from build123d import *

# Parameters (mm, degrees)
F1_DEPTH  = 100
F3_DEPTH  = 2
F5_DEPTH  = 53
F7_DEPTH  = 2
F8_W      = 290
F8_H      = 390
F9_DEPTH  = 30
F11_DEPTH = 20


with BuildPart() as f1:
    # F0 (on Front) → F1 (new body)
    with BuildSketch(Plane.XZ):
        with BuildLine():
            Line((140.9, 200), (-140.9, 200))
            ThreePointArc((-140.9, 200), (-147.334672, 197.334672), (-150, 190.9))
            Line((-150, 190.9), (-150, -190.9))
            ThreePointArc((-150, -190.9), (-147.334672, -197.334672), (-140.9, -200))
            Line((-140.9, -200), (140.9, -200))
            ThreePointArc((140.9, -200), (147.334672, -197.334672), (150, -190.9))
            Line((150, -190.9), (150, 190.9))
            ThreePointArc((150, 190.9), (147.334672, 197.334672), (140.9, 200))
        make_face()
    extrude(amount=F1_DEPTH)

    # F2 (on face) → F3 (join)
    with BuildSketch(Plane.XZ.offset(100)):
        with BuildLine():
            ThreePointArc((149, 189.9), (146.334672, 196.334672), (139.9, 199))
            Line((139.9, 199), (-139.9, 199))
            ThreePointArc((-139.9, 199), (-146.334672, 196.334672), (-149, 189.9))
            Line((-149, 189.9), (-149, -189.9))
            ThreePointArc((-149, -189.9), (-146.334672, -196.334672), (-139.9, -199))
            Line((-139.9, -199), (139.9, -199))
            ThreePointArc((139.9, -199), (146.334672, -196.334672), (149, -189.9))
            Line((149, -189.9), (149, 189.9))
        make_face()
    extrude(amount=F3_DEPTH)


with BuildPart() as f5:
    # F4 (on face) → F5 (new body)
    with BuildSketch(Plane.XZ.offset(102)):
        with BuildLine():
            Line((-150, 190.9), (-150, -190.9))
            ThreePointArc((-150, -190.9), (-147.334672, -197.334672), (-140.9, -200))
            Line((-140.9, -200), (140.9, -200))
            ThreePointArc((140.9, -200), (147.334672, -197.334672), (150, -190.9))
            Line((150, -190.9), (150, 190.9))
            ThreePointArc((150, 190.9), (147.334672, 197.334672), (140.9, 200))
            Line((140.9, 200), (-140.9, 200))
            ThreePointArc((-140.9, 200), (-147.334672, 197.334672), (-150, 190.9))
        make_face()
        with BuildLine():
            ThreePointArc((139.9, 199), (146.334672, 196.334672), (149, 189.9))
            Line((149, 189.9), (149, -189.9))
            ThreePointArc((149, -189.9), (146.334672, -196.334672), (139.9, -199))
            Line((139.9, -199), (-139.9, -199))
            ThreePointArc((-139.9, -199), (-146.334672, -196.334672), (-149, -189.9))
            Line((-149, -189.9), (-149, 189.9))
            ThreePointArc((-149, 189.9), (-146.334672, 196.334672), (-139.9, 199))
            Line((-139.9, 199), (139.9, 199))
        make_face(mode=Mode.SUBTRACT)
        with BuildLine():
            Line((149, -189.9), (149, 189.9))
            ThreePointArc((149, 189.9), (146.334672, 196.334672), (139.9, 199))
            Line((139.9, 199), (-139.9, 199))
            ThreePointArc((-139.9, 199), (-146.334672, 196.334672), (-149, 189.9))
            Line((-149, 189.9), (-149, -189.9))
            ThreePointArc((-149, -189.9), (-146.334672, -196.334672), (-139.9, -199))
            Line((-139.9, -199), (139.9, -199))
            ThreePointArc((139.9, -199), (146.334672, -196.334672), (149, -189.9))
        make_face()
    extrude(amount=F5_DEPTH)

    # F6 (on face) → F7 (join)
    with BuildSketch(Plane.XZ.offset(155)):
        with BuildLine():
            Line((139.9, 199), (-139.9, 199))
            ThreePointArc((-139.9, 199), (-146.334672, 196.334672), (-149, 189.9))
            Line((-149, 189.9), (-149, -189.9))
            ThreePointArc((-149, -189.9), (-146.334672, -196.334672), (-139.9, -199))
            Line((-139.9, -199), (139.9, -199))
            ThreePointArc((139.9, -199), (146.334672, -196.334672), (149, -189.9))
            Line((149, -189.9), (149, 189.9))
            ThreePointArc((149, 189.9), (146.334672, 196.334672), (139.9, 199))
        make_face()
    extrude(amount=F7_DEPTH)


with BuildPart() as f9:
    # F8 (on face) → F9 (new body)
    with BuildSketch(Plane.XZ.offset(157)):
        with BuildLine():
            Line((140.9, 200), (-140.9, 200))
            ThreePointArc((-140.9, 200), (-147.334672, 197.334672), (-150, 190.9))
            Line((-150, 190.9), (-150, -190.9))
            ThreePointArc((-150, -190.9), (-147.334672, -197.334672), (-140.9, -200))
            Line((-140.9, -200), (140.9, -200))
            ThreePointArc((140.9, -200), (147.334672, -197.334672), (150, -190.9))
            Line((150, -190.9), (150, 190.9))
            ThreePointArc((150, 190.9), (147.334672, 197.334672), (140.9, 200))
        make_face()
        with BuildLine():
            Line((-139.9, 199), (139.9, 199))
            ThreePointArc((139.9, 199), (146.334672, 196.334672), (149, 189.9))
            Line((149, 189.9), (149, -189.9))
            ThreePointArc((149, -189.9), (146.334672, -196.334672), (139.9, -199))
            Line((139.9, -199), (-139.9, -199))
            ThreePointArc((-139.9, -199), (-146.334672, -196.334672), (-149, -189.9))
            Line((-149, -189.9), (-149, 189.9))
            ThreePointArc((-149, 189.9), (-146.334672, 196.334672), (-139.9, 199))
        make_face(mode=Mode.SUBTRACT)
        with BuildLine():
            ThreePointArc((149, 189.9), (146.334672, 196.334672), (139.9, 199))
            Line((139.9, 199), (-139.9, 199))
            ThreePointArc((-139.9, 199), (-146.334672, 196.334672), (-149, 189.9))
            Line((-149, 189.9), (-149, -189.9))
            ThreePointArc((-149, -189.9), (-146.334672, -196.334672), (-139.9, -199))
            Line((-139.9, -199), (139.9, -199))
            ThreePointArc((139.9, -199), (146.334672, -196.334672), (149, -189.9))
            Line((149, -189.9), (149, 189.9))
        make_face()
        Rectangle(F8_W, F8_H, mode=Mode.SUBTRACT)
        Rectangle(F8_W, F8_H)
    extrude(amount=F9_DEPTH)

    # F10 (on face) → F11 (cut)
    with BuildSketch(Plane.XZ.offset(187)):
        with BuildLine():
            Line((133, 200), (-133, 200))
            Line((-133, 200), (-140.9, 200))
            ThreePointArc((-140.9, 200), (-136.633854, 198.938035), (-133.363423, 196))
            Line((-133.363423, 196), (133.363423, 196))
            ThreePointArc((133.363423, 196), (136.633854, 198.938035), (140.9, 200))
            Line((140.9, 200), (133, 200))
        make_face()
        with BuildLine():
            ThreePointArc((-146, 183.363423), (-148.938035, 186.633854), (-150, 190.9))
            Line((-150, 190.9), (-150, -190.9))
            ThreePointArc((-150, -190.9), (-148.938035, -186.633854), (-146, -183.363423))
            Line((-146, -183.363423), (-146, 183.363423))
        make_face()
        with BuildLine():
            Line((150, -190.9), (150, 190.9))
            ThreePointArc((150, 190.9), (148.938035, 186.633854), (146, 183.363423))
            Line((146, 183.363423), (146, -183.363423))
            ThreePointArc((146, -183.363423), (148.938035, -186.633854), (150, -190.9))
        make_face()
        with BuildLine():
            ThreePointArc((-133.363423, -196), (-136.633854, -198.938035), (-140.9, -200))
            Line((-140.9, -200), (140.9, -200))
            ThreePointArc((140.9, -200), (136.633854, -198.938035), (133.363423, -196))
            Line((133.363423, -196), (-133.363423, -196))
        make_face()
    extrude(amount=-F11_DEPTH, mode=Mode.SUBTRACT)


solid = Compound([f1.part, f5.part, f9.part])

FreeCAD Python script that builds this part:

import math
import FreeCAD as App
import Part
import Sketcher

V = App.Vector

doc = App.newDocument("Part")
params = doc.addObject("Spreadsheet::Sheet", "Params")
for row, (alias, value) in enumerate([
    ("sketch1_radius", "9.099999 mm"),
    ("sketch1_width", "281.8 mm"),
    ("sketch1_height", "381.8 mm"),
    ("pad1_length", "100 mm"),
    ("sketch2_radius", "9.099999 mm"),
    ("sketch2_width", "279.8 mm"),
    ("sketch2_height", "379.8 mm"),
    ("pad2_length", "2 mm"),
    ("sketch3_radius", "9.099999 mm"),
    ("sketch3_width", "281.8 mm"),
    ("sketch3_height", "381.8 mm"),
    ("pad3_length", "53 mm"),
    ("sketch4_radius", "9.099999 mm"),
    ("sketch4_width", "279.8 mm"),
    ("sketch4_height", "379.8 mm"),
    ("pad4_length", "2 mm"),
    ("sketch5_radius", "9.099999 mm"),
    ("sketch5_width", "281.8 mm"),
    ("sketch5_height", "381.8 mm"),
    ("pad5_length", "30 mm"),
    ("sketch6_width", "281.8 mm"),
    ("sketch6_height", "381.8 mm"),
    ("pocket1_length", "20 mm"),
], start=1):
    params.set(f"A{row}", alias)
    params.set(f"B{row}", "=" + value)
    params.setAlias(f"B{row}", alias)

body = doc.addObject("PartDesign::Body", "Body")

# Sketch on XZ plane
sketch1 = body.newObject("Sketcher::SketchObject", "Sketch")
sketch1.AttachmentSupport = (doc.getObject("XZ_Plane"), [""])
sketch1.MapMode = "FlatFace"
sketch1.addGeometry([
    Part.LineSegment(V(140.9, 200, 0), V(-140.9, 200, 0)),  # 0
    Part.ArcOfCircle(Part.Circle(V(-140.900001, 190.900001, 0), V(0, 0, 1), 9.099999), math.radians(89.999994), math.radians(180.000006)),  # 1
    Part.LineSegment(V(-150, 190.9, 0), V(-150, -190.9, 0)),  # 2
    Part.ArcOfCircle(Part.Circle(V(-140.900001, -190.900001, 0), V(0, 0, 1), 9.099999), math.radians(179.999994), math.radians(270.000006)),  # 3
    Part.LineSegment(V(-140.9, -200, 0), V(140.9, -200, 0)),  # 4
    Part.ArcOfCircle(Part.Circle(V(140.900001, -190.900001, 0), V(0, 0, 1), 9.099999), math.radians(-90.000006), math.radians(0.000006)),  # 5
    Part.LineSegment(V(150, -190.9, 0), V(150, 190.9, 0)),  # 6
    Part.ArcOfCircle(Part.Circle(V(140.900001, 190.900001, 0), V(0, 0, 1), 9.099999), math.radians(-0.000006), math.radians(90.000006)),  # 7
], False)
sketch1.addConstraint([
    Sketcher.Constraint("Tangent", 0, 2, 1, 1),
    Sketcher.Constraint("Tangent", 1, 2, 2, 1),
    Sketcher.Constraint("Tangent", 2, 2, 3, 1),
    Sketcher.Constraint("Tangent", 3, 2, 4, 1),
    Sketcher.Constraint("Tangent", 4, 2, 5, 1),
    Sketcher.Constraint("Tangent", 5, 2, 6, 1),
    Sketcher.Constraint("Tangent", 6, 2, 7, 1),
    Sketcher.Constraint("Tangent", 7, 2, 0, 1),
    Sketcher.Constraint("Horizontal", 0),
    Sketcher.Constraint("Vertical", 2),
    Sketcher.Constraint("Horizontal", 4),
    Sketcher.Constraint("Vertical", 6),
    Sketcher.Constraint("Equal", 1, 3),
    Sketcher.Constraint("Equal", 3, 5),
    Sketcher.Constraint("Equal", 5, 7),
    Sketcher.Constraint("Symmetric", 1, 3, 5, 3, -1, 1),
    Sketcher.Constraint("Radius", 1, 9.099999),
    Sketcher.Constraint("DistanceX", 0, 2, 0, 1, 281.8),
    Sketcher.Constraint("DistanceY", 2, 2, 2, 1, 381.8),
])
sketch1.setExpression("Constraints[16]", "Params.sketch1_radius")
sketch1.setExpression("Constraints[17]", "Params.sketch1_width")
sketch1.setExpression("Constraints[18]", "Params.sketch1_height")
pad1 = body.newObject("PartDesign::Pad", "Pad")
pad1.Profile = sketch1
pad1.setExpression("Length", "Params.pad1_length")

# Sketch on XZ plane
sketch2 = body.newObject("Sketcher::SketchObject", "Sketch001")
sketch2.AttachmentSupport = (doc.getObject("XZ_Plane"), [""])
sketch2.MapMode = "FlatFace"
sketch2.AttachmentOffset = App.Placement(V(0, 0, 100), App.Rotation())
sketch2.addGeometry([
    Part.ArcOfCircle(Part.Circle(V(139.900001, 189.900001, 0), V(0, 0, 1), 9.099999), math.radians(-0.000006), math.radians(90.000006)),  # 0
    Part.LineSegment(V(139.9, 199, 0), V(-139.9, 199, 0)),  # 1
    Part.ArcOfCircle(Part.Circle(V(-139.900001, 189.900001, 0), V(0, 0, 1), 9.099999), math.radians(89.999994), math.radians(180.000006)),  # 2
    Part.LineSegment(V(-149, 189.9, 0), V(-149, -189.9, 0)),  # 3
    Part.ArcOfCircle(Part.Circle(V(-139.900001, -189.900001, 0), V(0, 0, 1), 9.099999), math.radians(179.999994), math.radians(270.000006)),  # 4
    Part.LineSegment(V(-139.9, -199, 0), V(139.9, -199, 0)),  # 5
    Part.ArcOfCircle(Part.Circle(V(139.900001, -189.900001, 0), V(0, 0, 1), 9.099999), math.radians(-90.000006), math.radians(0.000006)),  # 6
    Part.LineSegment(V(149, -189.9, 0), V(149, 189.9, 0)),  # 7
], False)
sketch2.addConstraint([
    Sketcher.Constraint("Tangent", 0, 2, 1, 1),
    Sketcher.Constraint("Tangent", 1, 2, 2, 1),
    Sketcher.Constraint("Tangent", 2, 2, 3, 1),
    Sketcher.Constraint("Tangent", 3, 2, 4, 1),
    Sketcher.Constraint("Tangent", 4, 2, 5, 1),
    Sketcher.Constraint("Tangent", 5, 2, 6, 1),
    Sketcher.Constraint("Tangent", 6, 2, 7, 1),
    Sketcher.Constraint("Tangent", 7, 2, 0, 1),
    Sketcher.Constraint("Horizontal", 1),
    Sketcher.Constraint("Vertical", 3),
    Sketcher.Constraint("Horizontal", 5),
    Sketcher.Constraint("Vertical", 7),
    Sketcher.Constraint("Equal", 0, 2),
    Sketcher.Constraint("Equal", 2, 4),
    Sketcher.Constraint("Equal", 4, 6),
    Sketcher.Constraint("Symmetric", 0, 3, 4, 3, -1, 1),
    Sketcher.Constraint("Radius", 0, 9.099999),
    Sketcher.Constraint("DistanceX", 1, 2, 1, 1, 279.8),
    Sketcher.Constraint("DistanceY", 3, 2, 3, 1, 379.8),
])
sketch2.setExpression("Constraints[16]", "Params.sketch2_radius")
sketch2.setExpression("Constraints[17]", "Params.sketch2_width")
sketch2.setExpression("Constraints[18]", "Params.sketch2_height")
pad2 = body.newObject("PartDesign::Pad", "Pad001")
pad2.Profile = sketch2
pad2.setExpression("Length", "Params.pad2_length")
body2 = doc.addObject("PartDesign::Body", "Body001")

# Sketch on XZ plane
sketch3 = body2.newObject("Sketcher::SketchObject", "Sketch002")
sketch3.AttachmentSupport = (doc.getObject("XZ_Plane001"), [""])
sketch3.MapMode = "FlatFace"
sketch3.AttachmentOffset = App.Placement(V(0, 0, 102), App.Rotation())
sketch3.addGeometry([
    Part.LineSegment(V(-150, 190.9, 0), V(-150, -190.9, 0)),  # 0
    Part.ArcOfCircle(Part.Circle(V(-140.900001, -190.900001, 0), V(0, 0, 1), 9.099999), math.radians(179.999994), math.radians(270.000006)),  # 1
    Part.LineSegment(V(-140.9, -200, 0), V(140.9, -200, 0)),  # 2
    Part.ArcOfCircle(Part.Circle(V(140.900001, -190.900001, 0), V(0, 0, 1), 9.099999), math.radians(-90.000006), math.radians(0.000006)),  # 3
    Part.LineSegment(V(150, -190.9, 0), V(150, 190.9, 0)),  # 4
    Part.ArcOfCircle(Part.Circle(V(140.900001, 190.900001, 0), V(0, 0, 1), 9.099999), math.radians(-0.000006), math.radians(90.000006)),  # 5
    Part.LineSegment(V(140.9, 200, 0), V(-140.9, 200, 0)),  # 6
    Part.ArcOfCircle(Part.Circle(V(-140.900001, 190.900001, 0), V(0, 0, 1), 9.099999), math.radians(89.999994), math.radians(180.000006)),  # 7
], False)
sketch3.addConstraint([
    Sketcher.Constraint("Tangent", 0, 2, 1, 1),
    Sketcher.Constraint("Tangent", 1, 2, 2, 1),
    Sketcher.Constraint("Tangent", 2, 2, 3, 1),
    Sketcher.Constraint("Tangent", 3, 2, 4, 1),
    Sketcher.Constraint("Tangent", 4, 2, 5, 1),
    Sketcher.Constraint("Tangent", 5, 2, 6, 1),
    Sketcher.Constraint("Tangent", 6, 2, 7, 1),
    Sketcher.Constraint("Tangent", 7, 2, 0, 1),
    Sketcher.Constraint("Vertical", 0),
    Sketcher.Constraint("Horizontal", 2),
    Sketcher.Constraint("Vertical", 4),
    Sketcher.Constraint("Horizontal", 6),
    Sketcher.Constraint("Equal", 1, 3),
    Sketcher.Constraint("Equal", 3, 5),
    Sketcher.Constraint("Equal", 5, 7),
    Sketcher.Constraint("Symmetric", 1, 3, 5, 3, -1, 1),
    Sketcher.Constraint("Radius", 1, 9.099999),
    Sketcher.Constraint("DistanceX", 2, 1, 2, 2, 281.8),
    Sketcher.Constraint("DistanceY", 0, 2, 0, 1, 381.8),
])
sketch3.setExpression("Constraints[16]", "Params.sketch3_radius")
sketch3.setExpression("Constraints[17]", "Params.sketch3_width")
sketch3.setExpression("Constraints[18]", "Params.sketch3_height")
pad3 = body2.newObject("PartDesign::Pad", "Pad002")
pad3.Profile = sketch3
pad3.setExpression("Length", "Params.pad3_length")

# Sketch on XZ plane
sketch4 = body2.newObject("Sketcher::SketchObject", "Sketch003")
sketch4.AttachmentSupport = (doc.getObject("XZ_Plane001"), [""])
sketch4.MapMode = "FlatFace"
sketch4.AttachmentOffset = App.Placement(V(0, 0, 155), App.Rotation())
sketch4.addGeometry([
    Part.LineSegment(V(139.9, 199, 0), V(-139.9, 199, 0)),  # 0
    Part.ArcOfCircle(Part.Circle(V(-139.900001, 189.900001, 0), V(0, 0, 1), 9.099999), math.radians(89.999994), math.radians(180.000006)),  # 1
    Part.LineSegment(V(-149, 189.9, 0), V(-149, -189.9, 0)),  # 2
    Part.ArcOfCircle(Part.Circle(V(-139.900001, -189.900001, 0), V(0, 0, 1), 9.099999), math.radians(179.999994), math.radians(270.000006)),  # 3
    Part.LineSegment(V(-139.9, -199, 0), V(139.9, -199, 0)),  # 4
    Part.ArcOfCircle(Part.Circle(V(139.900001, -189.900001, 0), V(0, 0, 1), 9.099999), math.radians(-90.000006), math.radians(0.000006)),  # 5
    Part.LineSegment(V(149, -189.9, 0), V(149, 189.9, 0)),  # 6
    Part.ArcOfCircle(Part.Circle(V(139.900001, 189.900001, 0), V(0, 0, 1), 9.099999), math.radians(-0.000006), math.radians(90.000006)),  # 7
], False)
sketch4.addConstraint([
    Sketcher.Constraint("Tangent", 0, 2, 1, 1),
    Sketcher.Constraint("Tangent", 1, 2, 2, 1),
    Sketcher.Constraint("Tangent", 2, 2, 3, 1),
    Sketcher.Constraint("Tangent", 3, 2, 4, 1),
    Sketcher.Constraint("Tangent", 4, 2, 5, 1),
    Sketcher.Constraint("Tangent", 5, 2, 6, 1),
    Sketcher.Constraint("Tangent", 6, 2, 7, 1),
    Sketcher.Constraint("Tangent", 7, 2, 0, 1),
    Sketcher.Constraint("Horizontal", 0),
    Sketcher.Constraint("Vertical", 2),
    Sketcher.Constraint("Horizontal", 4),
    Sketcher.Constraint("Vertical", 6),
    Sketcher.Constraint("Equal", 1, 3),
    Sketcher.Constraint("Equal", 3, 5),
    Sketcher.Constraint("Equal", 5, 7),
    Sketcher.Constraint("Symmetric", 1, 3, 5, 3, -1, 1),
    Sketcher.Constraint("Radius", 1, 9.099999),
    Sketcher.Constraint("DistanceX", 0, 2, 0, 1, 279.8),
    Sketcher.Constraint("DistanceY", 2, 2, 2, 1, 379.8),
])
sketch4.setExpression("Constraints[16]", "Params.sketch4_radius")
sketch4.setExpression("Constraints[17]", "Params.sketch4_width")
sketch4.setExpression("Constraints[18]", "Params.sketch4_height")
pad4 = body2.newObject("PartDesign::Pad", "Pad003")
pad4.Profile = sketch4
pad4.setExpression("Length", "Params.pad4_length")
body3 = doc.addObject("PartDesign::Body", "Body002")

# Sketch on XZ plane
sketch5 = body3.newObject("Sketcher::SketchObject", "Sketch004")
sketch5.AttachmentSupport = (doc.getObject("XZ_Plane002"), [""])
sketch5.MapMode = "FlatFace"
sketch5.AttachmentOffset = App.Placement(V(0, 0, 157), App.Rotation())
sketch5.addGeometry([
    Part.LineSegment(V(140.9, 200, 0), V(-140.9, 200, 0)),  # 0
    Part.ArcOfCircle(Part.Circle(V(-140.900001, 190.900001, 0), V(0, 0, 1), 9.099999), math.radians(89.999994), math.radians(180.000006)),  # 1
    Part.LineSegment(V(-150, 190.9, 0), V(-150, -190.9, 0)),  # 2
    Part.ArcOfCircle(Part.Circle(V(-140.900001, -190.900001, 0), V(0, 0, 1), 9.099999), math.radians(179.999994), math.radians(270.000006)),  # 3
    Part.LineSegment(V(-140.9, -200, 0), V(140.9, -200, 0)),  # 4
    Part.ArcOfCircle(Part.Circle(V(140.900001, -190.900001, 0), V(0, 0, 1), 9.099999), math.radians(-90.000006), math.radians(0.000006)),  # 5
    Part.LineSegment(V(150, -190.9, 0), V(150, 190.9, 0)),  # 6
    Part.ArcOfCircle(Part.Circle(V(140.900001, 190.900001, 0), V(0, 0, 1), 9.099999), math.radians(-0.000006), math.radians(90.000006)),  # 7
], False)
sketch5.addConstraint([
    Sketcher.Constraint("Tangent", 0, 2, 1, 1),
    Sketcher.Constraint("Tangent", 1, 2, 2, 1),
    Sketcher.Constraint("Tangent", 2, 2, 3, 1),
    Sketcher.Constraint("Tangent", 3, 2, 4, 1),
    Sketcher.Constraint("Tangent", 4, 2, 5, 1),
    Sketcher.Constraint("Tangent", 5, 2, 6, 1),
    Sketcher.Constraint("Tangent", 6, 2, 7, 1),
    Sketcher.Constraint("Tangent", 7, 2, 0, 1),
    Sketcher.Constraint("Horizontal", 0),
    Sketcher.Constraint("Vertical", 2),
    Sketcher.Constraint("Horizontal", 4),
    Sketcher.Constraint("Vertical", 6),
    Sketcher.Constraint("Equal", 1, 3),
    Sketcher.Constraint("Equal", 3, 5),
    Sketcher.Constraint("Equal", 5, 7),
    Sketcher.Constraint("Symmetric", 1, 3, 5, 3, -1, 1),
    Sketcher.Constraint("Radius", 1, 9.099999),
    Sketcher.Constraint("DistanceX", 0, 2, 0, 1, 281.8),
    Sketcher.Constraint("DistanceY", 2, 2, 2, 1, 381.8),
])
sketch5.setExpression("Constraints[16]", "Params.sketch5_radius")
sketch5.setExpression("Constraints[17]", "Params.sketch5_width")
sketch5.setExpression("Constraints[18]", "Params.sketch5_height")
pad5 = body3.newObject("PartDesign::Pad", "Pad004")
pad5.Profile = sketch5
pad5.setExpression("Length", "Params.pad5_length")

# Sketch on XZ plane
sketch6 = body3.newObject("Sketcher::SketchObject", "Sketch005")
sketch6.AttachmentSupport = (doc.getObject("XZ_Plane002"), [""])
sketch6.MapMode = "FlatFace"
sketch6.AttachmentOffset = App.Placement(V(0, 0, 187), App.Rotation())
sketch6.addGeometry([
    Part.ArcOfCircle(Part.Circle(V(-140.899998, 190.900005, 0), V(0, 0, 1), 9.099995), math.radians(34.086185), math.radians(90.000014)),  # 0
    Part.LineSegment(V(-133.363423, 196, 0), V(133.363423, 196, 0)),  # 1
    Part.ArcOfCircle(Part.Circle(V(140.899998, 190.900005, 0), V(0, 0, 1), 9.099995), math.radians(89.999986), math.radians(145.913815)),  # 2
    Part.LineSegment(V(140.9, 200, 0), V(-140.9, 200, 0)),  # 3
    Part.ArcOfCircle(Part.Circle(V(-140.900005, 190.899998, 0), V(0, 0, 1), 9.099995), math.radians(179.999986), math.radians(235.913815)),  # 4
    Part.LineSegment(V(-150, 190.9, 0), V(-150, -190.9, 0)),  # 5
    Part.ArcOfCircle(Part.Circle(V(-140.900005, -190.899998, 0), V(0, 0, 1), 9.099995), math.radians(124.086185), math.radians(180.000014)),  # 6
    Part.LineSegment(V(-146, -183.363423, 0), V(-146, 183.363423, 0)),  # 7
    Part.LineSegment(V(150, -190.9, 0), V(150, 190.9, 0)),  # 8
    Part.ArcOfCircle(Part.Circle(V(140.900005, 190.899998, 0), V(0, 0, 1), 9.099995), math.radians(-55.913815), math.radians(0.000014)),  # 9
    Part.LineSegment(V(146, 183.363423, 0), V(146, -183.363423, 0)),  # 10
    Part.ArcOfCircle(Part.Circle(V(140.900005, -190.899998, 0), V(0, 0, 1), 9.099995), math.radians(-0.000014), math.radians(55.913815)),  # 11
    Part.ArcOfCircle(Part.Circle(V(-140.899998, -190.900005, 0), V(0, 0, 1), 9.099995), math.radians(-90.000014), math.radians(-34.086185)),  # 12
    Part.LineSegment(V(-140.9, -200, 0), V(140.9, -200, 0)),  # 13
    Part.ArcOfCircle(Part.Circle(V(140.899998, -190.900005, 0), V(0, 0, 1), 9.099995), math.radians(-145.913815), math.radians(-89.999986)),  # 14
    Part.LineSegment(V(133.363423, -196, 0), V(-133.363423, -196, 0)),  # 15
], False)
sketch6.addConstraint([
    Sketcher.Constraint("Coincident", 0, 1, 1, 1),
    Sketcher.Constraint("Coincident", 1, 2, 2, 2),
    Sketcher.Constraint("Tangent", 2, 1, 3, 1),
    Sketcher.Constraint("Tangent", 3, 2, 0, 2),
    Sketcher.Constraint("Tangent", 4, 1, 5, 1),
    Sketcher.Constraint("Tangent", 5, 2, 6, 2),
    Sketcher.Constraint("Coincident", 6, 1, 7, 1),
    Sketcher.Constraint("Coincident", 7, 2, 4, 2),
    Sketcher.Constraint("Tangent", 8, 2, 9, 2),
    Sketcher.Constraint("Coincident", 9, 1, 10, 1),
    Sketcher.Constraint("Coincident", 10, 2, 11, 2),
    Sketcher.Constraint("Tangent", 11, 1, 8, 1),
    Sketcher.Constraint("Tangent", 12, 1, 13, 1),
    Sketcher.Constraint("Tangent", 13, 2, 14, 2),
    Sketcher.Constraint("Coincident", 14, 1, 15, 1),
    Sketcher.Constraint("Coincident", 15, 2, 12, 2),
    Sketcher.Constraint("Horizontal", 1),
    Sketcher.Constraint("Horizontal", 3),
    Sketcher.Constraint("Vertical", 5),
    Sketcher.Constraint("Vertical", 7),
    Sketcher.Constraint("Vertical", 8),
    Sketcher.Constraint("Vertical", 10),
    Sketcher.Constraint("Horizontal", 13),
    Sketcher.Constraint("Horizontal", 15),
    Sketcher.Constraint("Equal", 0, 2),
    Sketcher.Constraint("Equal", 2, 4),
    Sketcher.Constraint("Equal", 4, 6),
    Sketcher.Constraint("Equal", 6, 9),
    Sketcher.Constraint("Equal", 9, 11),
    Sketcher.Constraint("Equal", 11, 12),
    Sketcher.Constraint("Equal", 12, 14),
    Sketcher.Constraint("Symmetric", 6, 3, 9, 3, -1, 1),
    Sketcher.Constraint("Symmetric", 2, 3, 12, 3, -1, 1),
    Sketcher.Constraint("Symmetric", 7, 2, 10, 2, -1, 1),
    Sketcher.Constraint("Symmetric", 0, 1, 14, 1, -1, 1),
    Sketcher.Constraint("Horizontal", 4, 3, 9, 3),
    Sketcher.Constraint("Vertical", 0, 3, 12, 3),
    Sketcher.Constraint("DistanceX", 3, 2, 3, 1, 281.8),
    Sketcher.Constraint("DistanceY", 5, 2, 5, 1, 381.8),
    Sketcher.Constraint("DistanceY", -1, 1, 0, 1, 196.0),
    Sketcher.Constraint("DistanceY", -1, 1, 2, 1, 200.0),
    Sketcher.Constraint("DistanceX", 4, 1, -1, 1, 150.0),
    Sketcher.Constraint("DistanceX", 6, 1, -1, 1, 146.0),
    Sketcher.Constraint("Radius", 0, 9.099995),
])
sketch6.setExpression("Constraints[37]", "Params.sketch6_width")
sketch6.setExpression("Constraints[38]", "Params.sketch6_height")
pocket1 = body3.newObject("PartDesign::Pocket", "Pocket")
pocket1.Profile = sketch6
pocket1.setExpression("Length", "Params.pocket1_length")

doc.recompute()
